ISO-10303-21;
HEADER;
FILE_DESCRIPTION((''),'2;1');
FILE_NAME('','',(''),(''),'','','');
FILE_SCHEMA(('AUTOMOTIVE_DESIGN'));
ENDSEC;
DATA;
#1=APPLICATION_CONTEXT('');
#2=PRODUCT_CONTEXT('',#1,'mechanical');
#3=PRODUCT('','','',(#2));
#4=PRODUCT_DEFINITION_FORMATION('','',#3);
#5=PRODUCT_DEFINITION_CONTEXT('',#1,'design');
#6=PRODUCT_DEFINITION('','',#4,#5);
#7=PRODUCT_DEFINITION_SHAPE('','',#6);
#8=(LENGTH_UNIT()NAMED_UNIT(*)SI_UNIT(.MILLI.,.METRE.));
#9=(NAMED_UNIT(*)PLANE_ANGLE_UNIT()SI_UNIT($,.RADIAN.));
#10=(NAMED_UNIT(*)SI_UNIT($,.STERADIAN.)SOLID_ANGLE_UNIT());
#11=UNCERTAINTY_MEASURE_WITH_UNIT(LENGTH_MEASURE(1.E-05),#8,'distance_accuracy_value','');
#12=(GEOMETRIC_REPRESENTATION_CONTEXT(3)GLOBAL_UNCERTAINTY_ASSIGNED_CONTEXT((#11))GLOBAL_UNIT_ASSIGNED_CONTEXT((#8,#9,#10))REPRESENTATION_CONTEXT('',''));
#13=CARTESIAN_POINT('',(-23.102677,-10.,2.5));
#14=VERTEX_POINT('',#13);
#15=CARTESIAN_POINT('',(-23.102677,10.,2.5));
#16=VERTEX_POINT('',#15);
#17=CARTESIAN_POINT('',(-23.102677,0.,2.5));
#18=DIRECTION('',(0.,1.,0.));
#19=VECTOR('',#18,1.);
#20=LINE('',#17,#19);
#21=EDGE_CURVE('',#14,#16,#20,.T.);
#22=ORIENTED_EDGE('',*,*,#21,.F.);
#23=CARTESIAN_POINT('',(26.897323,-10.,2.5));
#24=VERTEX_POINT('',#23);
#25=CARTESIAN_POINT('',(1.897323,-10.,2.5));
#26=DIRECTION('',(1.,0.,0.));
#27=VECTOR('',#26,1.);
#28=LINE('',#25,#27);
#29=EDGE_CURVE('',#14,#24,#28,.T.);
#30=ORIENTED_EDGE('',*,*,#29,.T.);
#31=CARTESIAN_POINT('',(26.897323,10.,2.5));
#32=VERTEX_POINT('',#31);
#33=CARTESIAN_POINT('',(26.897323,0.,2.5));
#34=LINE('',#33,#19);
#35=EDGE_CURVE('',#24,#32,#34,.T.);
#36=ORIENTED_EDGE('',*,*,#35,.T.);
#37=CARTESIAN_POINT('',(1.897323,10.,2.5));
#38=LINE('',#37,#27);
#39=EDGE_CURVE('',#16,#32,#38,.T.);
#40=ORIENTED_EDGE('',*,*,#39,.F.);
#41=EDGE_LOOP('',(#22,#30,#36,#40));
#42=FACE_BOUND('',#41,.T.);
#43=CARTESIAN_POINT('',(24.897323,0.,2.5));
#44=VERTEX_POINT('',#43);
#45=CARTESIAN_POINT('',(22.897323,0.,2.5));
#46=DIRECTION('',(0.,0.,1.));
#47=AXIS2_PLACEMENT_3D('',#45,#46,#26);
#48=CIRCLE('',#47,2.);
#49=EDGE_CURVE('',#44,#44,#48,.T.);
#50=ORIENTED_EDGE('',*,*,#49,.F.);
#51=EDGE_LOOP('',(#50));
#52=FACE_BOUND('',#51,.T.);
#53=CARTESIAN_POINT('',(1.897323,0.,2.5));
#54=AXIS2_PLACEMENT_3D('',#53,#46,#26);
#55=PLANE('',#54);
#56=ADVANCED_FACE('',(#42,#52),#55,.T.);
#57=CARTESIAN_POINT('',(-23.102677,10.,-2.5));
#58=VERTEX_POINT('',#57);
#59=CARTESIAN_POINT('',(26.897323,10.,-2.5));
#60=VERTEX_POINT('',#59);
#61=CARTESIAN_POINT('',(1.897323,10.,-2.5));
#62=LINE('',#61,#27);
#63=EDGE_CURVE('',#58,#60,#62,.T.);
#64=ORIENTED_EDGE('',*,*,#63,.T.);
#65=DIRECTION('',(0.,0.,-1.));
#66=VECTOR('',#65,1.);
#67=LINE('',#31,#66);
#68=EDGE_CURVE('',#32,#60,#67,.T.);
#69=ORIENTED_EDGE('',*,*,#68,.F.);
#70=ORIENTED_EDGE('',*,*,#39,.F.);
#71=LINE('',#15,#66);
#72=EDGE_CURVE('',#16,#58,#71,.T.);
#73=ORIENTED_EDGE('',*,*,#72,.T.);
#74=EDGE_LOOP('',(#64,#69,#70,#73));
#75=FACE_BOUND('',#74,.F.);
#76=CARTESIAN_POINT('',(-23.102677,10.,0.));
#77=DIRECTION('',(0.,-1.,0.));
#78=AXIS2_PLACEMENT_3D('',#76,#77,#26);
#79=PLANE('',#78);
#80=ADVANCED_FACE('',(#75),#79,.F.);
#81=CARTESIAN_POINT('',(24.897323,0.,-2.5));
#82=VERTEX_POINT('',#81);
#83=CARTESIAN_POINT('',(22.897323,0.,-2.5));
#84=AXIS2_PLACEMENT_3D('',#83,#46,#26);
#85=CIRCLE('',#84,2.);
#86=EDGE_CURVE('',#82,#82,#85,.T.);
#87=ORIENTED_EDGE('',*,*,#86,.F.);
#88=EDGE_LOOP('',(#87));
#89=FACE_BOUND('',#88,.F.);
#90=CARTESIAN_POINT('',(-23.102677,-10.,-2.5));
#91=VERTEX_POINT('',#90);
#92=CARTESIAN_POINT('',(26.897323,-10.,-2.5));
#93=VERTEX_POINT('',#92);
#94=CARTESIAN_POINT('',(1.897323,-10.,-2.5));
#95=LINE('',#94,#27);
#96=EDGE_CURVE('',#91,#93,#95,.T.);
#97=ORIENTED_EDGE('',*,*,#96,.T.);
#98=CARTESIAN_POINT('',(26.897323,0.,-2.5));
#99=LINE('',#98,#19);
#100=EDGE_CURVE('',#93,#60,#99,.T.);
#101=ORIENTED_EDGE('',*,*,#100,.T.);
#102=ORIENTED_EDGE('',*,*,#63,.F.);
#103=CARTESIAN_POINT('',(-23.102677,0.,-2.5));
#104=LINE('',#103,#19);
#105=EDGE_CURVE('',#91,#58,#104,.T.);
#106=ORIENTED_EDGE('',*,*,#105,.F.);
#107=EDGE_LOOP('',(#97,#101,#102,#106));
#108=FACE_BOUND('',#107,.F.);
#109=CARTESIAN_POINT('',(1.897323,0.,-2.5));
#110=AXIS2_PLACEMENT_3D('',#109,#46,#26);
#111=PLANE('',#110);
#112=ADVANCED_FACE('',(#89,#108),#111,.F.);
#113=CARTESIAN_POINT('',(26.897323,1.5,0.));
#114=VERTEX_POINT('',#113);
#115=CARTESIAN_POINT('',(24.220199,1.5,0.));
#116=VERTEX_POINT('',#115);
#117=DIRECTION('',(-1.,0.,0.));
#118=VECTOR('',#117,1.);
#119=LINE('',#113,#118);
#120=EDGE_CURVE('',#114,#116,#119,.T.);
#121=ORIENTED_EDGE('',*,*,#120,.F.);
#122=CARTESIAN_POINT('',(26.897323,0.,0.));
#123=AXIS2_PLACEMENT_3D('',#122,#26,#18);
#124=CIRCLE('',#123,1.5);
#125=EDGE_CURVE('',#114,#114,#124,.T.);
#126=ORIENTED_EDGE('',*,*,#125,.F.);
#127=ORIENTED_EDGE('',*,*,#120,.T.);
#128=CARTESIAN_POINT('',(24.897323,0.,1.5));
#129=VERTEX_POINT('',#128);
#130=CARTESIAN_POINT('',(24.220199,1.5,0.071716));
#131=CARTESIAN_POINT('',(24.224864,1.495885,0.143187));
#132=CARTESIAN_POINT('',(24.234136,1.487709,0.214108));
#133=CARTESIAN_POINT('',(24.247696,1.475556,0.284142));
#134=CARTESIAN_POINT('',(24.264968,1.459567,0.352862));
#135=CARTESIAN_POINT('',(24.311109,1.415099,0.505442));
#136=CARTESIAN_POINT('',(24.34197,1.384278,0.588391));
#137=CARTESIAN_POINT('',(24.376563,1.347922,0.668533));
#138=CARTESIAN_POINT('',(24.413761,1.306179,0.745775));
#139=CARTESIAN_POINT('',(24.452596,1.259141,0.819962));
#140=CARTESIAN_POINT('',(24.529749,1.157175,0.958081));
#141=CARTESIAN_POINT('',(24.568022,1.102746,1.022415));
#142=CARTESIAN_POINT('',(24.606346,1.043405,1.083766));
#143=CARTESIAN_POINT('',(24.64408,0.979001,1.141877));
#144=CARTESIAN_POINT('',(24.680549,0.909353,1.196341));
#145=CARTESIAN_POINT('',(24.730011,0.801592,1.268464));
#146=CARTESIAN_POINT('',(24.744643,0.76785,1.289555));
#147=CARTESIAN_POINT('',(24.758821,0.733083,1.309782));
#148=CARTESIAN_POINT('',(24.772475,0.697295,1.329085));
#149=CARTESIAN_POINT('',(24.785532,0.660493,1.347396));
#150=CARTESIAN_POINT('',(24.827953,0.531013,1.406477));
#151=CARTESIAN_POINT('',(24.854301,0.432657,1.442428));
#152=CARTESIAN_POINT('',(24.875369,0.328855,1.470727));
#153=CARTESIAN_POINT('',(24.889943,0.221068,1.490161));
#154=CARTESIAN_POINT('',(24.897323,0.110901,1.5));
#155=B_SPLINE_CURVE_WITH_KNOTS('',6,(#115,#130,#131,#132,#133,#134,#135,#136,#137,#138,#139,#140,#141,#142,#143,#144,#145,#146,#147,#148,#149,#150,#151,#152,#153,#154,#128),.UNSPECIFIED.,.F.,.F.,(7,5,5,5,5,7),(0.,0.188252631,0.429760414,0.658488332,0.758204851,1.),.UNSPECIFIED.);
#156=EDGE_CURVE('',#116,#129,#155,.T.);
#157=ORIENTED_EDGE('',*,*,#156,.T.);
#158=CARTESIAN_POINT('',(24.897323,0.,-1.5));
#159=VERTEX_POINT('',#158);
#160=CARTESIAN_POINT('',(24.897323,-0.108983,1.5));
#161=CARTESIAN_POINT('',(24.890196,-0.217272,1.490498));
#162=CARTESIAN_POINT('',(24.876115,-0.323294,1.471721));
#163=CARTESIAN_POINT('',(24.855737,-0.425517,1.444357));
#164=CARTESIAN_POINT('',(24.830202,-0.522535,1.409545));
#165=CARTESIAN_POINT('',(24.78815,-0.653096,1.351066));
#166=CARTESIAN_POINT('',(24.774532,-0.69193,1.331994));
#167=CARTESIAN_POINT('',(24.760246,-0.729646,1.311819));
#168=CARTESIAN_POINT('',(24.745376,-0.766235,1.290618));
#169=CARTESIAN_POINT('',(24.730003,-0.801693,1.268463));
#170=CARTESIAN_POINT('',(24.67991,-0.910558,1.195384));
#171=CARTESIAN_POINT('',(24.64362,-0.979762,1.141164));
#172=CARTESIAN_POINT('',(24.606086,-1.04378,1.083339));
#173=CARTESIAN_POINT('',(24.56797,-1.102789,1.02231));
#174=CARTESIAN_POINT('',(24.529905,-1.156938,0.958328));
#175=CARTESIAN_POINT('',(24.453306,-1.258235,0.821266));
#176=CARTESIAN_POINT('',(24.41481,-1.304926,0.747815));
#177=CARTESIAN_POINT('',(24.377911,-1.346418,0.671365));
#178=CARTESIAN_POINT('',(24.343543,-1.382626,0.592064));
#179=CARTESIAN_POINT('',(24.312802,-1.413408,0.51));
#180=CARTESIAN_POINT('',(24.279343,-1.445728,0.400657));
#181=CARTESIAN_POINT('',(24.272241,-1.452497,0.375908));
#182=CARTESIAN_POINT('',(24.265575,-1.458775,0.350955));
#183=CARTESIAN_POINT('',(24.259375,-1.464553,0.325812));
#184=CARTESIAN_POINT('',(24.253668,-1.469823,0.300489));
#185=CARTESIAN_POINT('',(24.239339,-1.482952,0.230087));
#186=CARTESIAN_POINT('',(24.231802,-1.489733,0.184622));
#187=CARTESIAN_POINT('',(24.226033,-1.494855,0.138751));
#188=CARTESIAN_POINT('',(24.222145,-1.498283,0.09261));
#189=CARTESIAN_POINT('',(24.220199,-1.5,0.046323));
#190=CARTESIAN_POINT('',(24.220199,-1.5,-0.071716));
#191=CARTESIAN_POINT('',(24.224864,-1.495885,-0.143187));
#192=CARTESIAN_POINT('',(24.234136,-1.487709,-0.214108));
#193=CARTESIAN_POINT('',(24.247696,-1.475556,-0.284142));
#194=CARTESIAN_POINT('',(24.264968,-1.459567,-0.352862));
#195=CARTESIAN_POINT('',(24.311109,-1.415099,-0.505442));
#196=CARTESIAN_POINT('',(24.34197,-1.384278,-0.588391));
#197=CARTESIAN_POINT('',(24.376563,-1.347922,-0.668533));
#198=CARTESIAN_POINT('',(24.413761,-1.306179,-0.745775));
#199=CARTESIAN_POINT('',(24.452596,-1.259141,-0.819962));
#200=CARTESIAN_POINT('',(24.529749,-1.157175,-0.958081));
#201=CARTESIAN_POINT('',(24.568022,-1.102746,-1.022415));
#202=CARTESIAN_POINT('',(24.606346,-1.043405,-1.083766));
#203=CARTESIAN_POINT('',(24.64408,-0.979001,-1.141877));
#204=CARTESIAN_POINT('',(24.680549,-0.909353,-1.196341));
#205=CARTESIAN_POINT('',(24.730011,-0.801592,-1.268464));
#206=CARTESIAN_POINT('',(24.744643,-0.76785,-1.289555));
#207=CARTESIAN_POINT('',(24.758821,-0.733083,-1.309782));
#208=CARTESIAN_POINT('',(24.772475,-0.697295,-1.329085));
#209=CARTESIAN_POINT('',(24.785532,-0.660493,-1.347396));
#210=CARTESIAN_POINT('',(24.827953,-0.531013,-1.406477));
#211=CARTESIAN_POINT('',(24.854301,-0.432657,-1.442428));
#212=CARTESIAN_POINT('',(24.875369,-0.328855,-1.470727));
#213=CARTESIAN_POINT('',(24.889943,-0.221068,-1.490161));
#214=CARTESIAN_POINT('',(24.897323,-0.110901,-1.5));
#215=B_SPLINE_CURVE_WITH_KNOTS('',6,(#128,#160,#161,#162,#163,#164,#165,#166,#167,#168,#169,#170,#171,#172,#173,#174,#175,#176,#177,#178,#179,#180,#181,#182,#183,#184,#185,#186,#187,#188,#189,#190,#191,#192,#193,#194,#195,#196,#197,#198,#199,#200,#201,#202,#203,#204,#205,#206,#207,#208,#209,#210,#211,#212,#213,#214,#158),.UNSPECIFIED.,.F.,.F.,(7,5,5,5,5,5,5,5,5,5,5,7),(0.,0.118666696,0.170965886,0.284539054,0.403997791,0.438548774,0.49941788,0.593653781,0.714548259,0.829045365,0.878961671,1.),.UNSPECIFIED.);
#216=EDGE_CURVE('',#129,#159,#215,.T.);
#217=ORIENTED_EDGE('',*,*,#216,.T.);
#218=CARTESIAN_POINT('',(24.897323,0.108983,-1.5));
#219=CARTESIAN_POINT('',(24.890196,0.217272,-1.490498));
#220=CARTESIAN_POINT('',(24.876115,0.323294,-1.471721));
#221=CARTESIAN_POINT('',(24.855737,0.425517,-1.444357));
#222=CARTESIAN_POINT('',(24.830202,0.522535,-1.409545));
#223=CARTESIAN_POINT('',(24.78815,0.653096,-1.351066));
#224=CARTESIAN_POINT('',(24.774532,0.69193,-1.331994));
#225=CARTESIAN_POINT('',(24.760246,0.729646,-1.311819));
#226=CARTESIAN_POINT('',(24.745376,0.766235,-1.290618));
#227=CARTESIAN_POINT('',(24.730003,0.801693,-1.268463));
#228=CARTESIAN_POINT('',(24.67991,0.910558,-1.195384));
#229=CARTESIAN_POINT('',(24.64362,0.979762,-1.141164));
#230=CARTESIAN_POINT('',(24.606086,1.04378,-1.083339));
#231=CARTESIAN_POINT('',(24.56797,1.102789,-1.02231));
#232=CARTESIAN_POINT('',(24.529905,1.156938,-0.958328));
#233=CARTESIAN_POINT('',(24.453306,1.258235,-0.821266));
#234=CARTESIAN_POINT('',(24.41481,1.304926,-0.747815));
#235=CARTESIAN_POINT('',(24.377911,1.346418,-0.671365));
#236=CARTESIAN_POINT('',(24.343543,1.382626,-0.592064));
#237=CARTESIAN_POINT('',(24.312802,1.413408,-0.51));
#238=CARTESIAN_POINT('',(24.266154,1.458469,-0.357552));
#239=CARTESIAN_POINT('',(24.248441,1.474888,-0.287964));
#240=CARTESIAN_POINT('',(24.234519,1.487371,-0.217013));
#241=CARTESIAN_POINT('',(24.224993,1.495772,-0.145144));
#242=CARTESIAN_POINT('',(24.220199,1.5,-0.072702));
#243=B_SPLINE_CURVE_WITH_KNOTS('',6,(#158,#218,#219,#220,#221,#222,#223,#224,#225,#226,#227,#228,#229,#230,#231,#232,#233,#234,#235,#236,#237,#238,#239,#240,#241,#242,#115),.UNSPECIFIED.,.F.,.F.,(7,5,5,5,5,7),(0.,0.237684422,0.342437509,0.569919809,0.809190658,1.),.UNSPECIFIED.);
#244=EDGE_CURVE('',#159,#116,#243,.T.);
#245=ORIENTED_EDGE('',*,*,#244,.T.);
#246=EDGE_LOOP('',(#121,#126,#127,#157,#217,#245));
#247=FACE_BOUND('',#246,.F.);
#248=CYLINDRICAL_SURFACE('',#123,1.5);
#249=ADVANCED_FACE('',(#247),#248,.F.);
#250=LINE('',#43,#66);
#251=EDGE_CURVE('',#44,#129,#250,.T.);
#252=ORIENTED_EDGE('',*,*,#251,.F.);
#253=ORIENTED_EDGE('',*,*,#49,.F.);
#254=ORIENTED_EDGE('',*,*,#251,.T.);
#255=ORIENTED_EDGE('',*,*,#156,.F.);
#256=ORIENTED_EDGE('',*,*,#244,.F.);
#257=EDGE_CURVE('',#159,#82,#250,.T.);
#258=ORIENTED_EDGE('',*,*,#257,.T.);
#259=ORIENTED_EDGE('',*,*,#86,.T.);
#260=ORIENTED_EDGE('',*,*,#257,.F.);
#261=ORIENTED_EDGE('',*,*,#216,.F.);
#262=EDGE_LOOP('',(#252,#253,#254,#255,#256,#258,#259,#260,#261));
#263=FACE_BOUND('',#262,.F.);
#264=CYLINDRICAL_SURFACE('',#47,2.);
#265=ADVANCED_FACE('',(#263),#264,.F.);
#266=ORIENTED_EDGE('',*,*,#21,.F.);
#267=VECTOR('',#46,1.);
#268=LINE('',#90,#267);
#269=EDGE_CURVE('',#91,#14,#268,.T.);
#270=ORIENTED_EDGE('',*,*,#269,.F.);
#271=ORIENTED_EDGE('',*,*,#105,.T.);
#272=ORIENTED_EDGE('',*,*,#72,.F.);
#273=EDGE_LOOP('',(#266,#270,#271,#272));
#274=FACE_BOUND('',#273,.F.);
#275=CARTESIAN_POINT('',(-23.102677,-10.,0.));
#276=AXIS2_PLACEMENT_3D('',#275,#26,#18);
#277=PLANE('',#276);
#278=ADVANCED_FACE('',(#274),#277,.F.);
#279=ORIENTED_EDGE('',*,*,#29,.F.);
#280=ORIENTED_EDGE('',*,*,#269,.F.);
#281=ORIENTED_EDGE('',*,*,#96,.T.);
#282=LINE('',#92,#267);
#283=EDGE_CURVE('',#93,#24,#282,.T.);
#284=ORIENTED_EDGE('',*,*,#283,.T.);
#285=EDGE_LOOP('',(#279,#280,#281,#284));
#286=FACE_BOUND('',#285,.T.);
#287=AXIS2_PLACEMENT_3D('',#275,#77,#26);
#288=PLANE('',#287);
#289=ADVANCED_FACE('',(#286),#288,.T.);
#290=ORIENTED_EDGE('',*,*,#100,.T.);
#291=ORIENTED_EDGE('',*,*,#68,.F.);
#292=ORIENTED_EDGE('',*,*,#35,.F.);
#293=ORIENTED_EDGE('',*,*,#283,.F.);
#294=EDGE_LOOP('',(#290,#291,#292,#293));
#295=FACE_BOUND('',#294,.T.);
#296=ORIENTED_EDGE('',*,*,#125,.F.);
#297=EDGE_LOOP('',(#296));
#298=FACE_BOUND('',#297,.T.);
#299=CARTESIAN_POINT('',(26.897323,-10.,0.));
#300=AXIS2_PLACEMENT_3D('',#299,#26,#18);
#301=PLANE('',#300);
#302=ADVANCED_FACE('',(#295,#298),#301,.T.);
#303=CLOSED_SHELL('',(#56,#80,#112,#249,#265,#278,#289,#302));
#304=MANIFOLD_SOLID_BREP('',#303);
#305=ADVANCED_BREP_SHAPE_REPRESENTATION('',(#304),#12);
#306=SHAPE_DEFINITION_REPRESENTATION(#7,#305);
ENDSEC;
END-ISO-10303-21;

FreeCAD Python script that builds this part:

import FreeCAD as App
import Part
import Sketcher

doc = App.newDocument("Part")
body = doc.addObject("PartDesign::Body", "Body")

sketch1 = body.newObject("Sketcher::SketchObject", "Sketch")
sketch1.AttachmentSupport = (doc.getObject("XY_Plane"), [""])
sketch1.MapMode = "FlatFace"
sketch1.addGeometry([
    Part.LineSegment(App.Vector(-23, 10, 0), App.Vector(-23, -10, 0)),
    Part.LineSegment(App.Vector(-23, -10, 0), App.Vector(27, -10, 0)),
    Part.LineSegment(App.Vector(27, -10, 0), App.Vector(27, 10, 0)),
    Part.LineSegment(App.Vector(27, 10, 0), App.Vector(-23, 10, 0)),
], False)
sketch1.addConstraint([
    Sketcher.Constraint("Coincident", 0, 2, 1, 1),
    Sketcher.Constraint("Coincident", 1, 2, 2, 1),
    Sketcher.Constraint("Coincident", 2, 2, 3, 1),
    Sketcher.Constraint("Coincident", 3, 2, 0, 1),
    Sketcher.Constraint("Vertical", 0),
    Sketcher.Constraint("Horizontal", 1),
    Sketcher.Constraint("Vertical", 2),
    Sketcher.Constraint("Horizontal", 3),
    Sketcher.Constraint("DistanceX", 1, 1, 1, 2, 50.0),
    Sketcher.Constraint("DistanceY", 0, 2, 0, 1, 20.0),
    Sketcher.Constraint("DistanceY", 0, 2, -1, 1, 10.0),
    Sketcher.Constraint("DistanceX", 0, 2, -1, 1, 23.102677),
])
pad1 = body.newObject("PartDesign::Pad", "Pad")
pad1.Profile = sketch1
pad1.Length = 5
pad1.Midplane = True

sketch2 = body.newObject("Sketcher::SketchObject", "Sketch001")
sketch2.AttachmentSupport = (doc.getObject("XY_Plane"), [""])
sketch2.MapMode = "FlatFace"
sketch2.AttachmentOffset = App.Placement(App.Vector(0, 0, 2.5), App.Rotation())
sketch2.addGeometry(Part.Circle(App.Vector(22.9, 0, 0), App.Vector(0, 0, 1), 2), False)
sketch2.addConstraint([
    Sketcher.Constraint("PointOnObject", 0, 3, -1),
    Sketcher.Constraint("Diameter", 0, 4.0),
    Sketcher.Constraint("DistanceX", -1, 1, 0, 3, 22.897323),
])
pocket1 = body.newObject("PartDesign::Pocket", "Pocket")
pocket1.Profile = sketch2
pocket1.Type = "ThroughAll"

sketch3 = body.newObject("Sketcher::SketchObject", "Sketch002")
sketch3.AttachmentSupport = (doc.getObject("YZ_Plane"), [""])
sketch3.MapMode = "FlatFace"
sketch3.AttachmentOffset = App.Placement(App.Vector(0, 0, 26.897323), App.Rotation())
sketch3.addGeometry(Part.Circle(App.Vector(0, 0, 0), App.Vector(0, 0, 1), 1.5), False)
sketch3.addConstraint([
    Sketcher.Constraint("Coincident", 0, 3, -1, 1),
    Sketcher.Constraint("Diameter", 0, 3.0),
])
pocket2 = body.newObject("PartDesign::Pocket", "Pocket001")
pocket2.Profile = sketch3
pocket2.Length = 5

doc.recompute()
